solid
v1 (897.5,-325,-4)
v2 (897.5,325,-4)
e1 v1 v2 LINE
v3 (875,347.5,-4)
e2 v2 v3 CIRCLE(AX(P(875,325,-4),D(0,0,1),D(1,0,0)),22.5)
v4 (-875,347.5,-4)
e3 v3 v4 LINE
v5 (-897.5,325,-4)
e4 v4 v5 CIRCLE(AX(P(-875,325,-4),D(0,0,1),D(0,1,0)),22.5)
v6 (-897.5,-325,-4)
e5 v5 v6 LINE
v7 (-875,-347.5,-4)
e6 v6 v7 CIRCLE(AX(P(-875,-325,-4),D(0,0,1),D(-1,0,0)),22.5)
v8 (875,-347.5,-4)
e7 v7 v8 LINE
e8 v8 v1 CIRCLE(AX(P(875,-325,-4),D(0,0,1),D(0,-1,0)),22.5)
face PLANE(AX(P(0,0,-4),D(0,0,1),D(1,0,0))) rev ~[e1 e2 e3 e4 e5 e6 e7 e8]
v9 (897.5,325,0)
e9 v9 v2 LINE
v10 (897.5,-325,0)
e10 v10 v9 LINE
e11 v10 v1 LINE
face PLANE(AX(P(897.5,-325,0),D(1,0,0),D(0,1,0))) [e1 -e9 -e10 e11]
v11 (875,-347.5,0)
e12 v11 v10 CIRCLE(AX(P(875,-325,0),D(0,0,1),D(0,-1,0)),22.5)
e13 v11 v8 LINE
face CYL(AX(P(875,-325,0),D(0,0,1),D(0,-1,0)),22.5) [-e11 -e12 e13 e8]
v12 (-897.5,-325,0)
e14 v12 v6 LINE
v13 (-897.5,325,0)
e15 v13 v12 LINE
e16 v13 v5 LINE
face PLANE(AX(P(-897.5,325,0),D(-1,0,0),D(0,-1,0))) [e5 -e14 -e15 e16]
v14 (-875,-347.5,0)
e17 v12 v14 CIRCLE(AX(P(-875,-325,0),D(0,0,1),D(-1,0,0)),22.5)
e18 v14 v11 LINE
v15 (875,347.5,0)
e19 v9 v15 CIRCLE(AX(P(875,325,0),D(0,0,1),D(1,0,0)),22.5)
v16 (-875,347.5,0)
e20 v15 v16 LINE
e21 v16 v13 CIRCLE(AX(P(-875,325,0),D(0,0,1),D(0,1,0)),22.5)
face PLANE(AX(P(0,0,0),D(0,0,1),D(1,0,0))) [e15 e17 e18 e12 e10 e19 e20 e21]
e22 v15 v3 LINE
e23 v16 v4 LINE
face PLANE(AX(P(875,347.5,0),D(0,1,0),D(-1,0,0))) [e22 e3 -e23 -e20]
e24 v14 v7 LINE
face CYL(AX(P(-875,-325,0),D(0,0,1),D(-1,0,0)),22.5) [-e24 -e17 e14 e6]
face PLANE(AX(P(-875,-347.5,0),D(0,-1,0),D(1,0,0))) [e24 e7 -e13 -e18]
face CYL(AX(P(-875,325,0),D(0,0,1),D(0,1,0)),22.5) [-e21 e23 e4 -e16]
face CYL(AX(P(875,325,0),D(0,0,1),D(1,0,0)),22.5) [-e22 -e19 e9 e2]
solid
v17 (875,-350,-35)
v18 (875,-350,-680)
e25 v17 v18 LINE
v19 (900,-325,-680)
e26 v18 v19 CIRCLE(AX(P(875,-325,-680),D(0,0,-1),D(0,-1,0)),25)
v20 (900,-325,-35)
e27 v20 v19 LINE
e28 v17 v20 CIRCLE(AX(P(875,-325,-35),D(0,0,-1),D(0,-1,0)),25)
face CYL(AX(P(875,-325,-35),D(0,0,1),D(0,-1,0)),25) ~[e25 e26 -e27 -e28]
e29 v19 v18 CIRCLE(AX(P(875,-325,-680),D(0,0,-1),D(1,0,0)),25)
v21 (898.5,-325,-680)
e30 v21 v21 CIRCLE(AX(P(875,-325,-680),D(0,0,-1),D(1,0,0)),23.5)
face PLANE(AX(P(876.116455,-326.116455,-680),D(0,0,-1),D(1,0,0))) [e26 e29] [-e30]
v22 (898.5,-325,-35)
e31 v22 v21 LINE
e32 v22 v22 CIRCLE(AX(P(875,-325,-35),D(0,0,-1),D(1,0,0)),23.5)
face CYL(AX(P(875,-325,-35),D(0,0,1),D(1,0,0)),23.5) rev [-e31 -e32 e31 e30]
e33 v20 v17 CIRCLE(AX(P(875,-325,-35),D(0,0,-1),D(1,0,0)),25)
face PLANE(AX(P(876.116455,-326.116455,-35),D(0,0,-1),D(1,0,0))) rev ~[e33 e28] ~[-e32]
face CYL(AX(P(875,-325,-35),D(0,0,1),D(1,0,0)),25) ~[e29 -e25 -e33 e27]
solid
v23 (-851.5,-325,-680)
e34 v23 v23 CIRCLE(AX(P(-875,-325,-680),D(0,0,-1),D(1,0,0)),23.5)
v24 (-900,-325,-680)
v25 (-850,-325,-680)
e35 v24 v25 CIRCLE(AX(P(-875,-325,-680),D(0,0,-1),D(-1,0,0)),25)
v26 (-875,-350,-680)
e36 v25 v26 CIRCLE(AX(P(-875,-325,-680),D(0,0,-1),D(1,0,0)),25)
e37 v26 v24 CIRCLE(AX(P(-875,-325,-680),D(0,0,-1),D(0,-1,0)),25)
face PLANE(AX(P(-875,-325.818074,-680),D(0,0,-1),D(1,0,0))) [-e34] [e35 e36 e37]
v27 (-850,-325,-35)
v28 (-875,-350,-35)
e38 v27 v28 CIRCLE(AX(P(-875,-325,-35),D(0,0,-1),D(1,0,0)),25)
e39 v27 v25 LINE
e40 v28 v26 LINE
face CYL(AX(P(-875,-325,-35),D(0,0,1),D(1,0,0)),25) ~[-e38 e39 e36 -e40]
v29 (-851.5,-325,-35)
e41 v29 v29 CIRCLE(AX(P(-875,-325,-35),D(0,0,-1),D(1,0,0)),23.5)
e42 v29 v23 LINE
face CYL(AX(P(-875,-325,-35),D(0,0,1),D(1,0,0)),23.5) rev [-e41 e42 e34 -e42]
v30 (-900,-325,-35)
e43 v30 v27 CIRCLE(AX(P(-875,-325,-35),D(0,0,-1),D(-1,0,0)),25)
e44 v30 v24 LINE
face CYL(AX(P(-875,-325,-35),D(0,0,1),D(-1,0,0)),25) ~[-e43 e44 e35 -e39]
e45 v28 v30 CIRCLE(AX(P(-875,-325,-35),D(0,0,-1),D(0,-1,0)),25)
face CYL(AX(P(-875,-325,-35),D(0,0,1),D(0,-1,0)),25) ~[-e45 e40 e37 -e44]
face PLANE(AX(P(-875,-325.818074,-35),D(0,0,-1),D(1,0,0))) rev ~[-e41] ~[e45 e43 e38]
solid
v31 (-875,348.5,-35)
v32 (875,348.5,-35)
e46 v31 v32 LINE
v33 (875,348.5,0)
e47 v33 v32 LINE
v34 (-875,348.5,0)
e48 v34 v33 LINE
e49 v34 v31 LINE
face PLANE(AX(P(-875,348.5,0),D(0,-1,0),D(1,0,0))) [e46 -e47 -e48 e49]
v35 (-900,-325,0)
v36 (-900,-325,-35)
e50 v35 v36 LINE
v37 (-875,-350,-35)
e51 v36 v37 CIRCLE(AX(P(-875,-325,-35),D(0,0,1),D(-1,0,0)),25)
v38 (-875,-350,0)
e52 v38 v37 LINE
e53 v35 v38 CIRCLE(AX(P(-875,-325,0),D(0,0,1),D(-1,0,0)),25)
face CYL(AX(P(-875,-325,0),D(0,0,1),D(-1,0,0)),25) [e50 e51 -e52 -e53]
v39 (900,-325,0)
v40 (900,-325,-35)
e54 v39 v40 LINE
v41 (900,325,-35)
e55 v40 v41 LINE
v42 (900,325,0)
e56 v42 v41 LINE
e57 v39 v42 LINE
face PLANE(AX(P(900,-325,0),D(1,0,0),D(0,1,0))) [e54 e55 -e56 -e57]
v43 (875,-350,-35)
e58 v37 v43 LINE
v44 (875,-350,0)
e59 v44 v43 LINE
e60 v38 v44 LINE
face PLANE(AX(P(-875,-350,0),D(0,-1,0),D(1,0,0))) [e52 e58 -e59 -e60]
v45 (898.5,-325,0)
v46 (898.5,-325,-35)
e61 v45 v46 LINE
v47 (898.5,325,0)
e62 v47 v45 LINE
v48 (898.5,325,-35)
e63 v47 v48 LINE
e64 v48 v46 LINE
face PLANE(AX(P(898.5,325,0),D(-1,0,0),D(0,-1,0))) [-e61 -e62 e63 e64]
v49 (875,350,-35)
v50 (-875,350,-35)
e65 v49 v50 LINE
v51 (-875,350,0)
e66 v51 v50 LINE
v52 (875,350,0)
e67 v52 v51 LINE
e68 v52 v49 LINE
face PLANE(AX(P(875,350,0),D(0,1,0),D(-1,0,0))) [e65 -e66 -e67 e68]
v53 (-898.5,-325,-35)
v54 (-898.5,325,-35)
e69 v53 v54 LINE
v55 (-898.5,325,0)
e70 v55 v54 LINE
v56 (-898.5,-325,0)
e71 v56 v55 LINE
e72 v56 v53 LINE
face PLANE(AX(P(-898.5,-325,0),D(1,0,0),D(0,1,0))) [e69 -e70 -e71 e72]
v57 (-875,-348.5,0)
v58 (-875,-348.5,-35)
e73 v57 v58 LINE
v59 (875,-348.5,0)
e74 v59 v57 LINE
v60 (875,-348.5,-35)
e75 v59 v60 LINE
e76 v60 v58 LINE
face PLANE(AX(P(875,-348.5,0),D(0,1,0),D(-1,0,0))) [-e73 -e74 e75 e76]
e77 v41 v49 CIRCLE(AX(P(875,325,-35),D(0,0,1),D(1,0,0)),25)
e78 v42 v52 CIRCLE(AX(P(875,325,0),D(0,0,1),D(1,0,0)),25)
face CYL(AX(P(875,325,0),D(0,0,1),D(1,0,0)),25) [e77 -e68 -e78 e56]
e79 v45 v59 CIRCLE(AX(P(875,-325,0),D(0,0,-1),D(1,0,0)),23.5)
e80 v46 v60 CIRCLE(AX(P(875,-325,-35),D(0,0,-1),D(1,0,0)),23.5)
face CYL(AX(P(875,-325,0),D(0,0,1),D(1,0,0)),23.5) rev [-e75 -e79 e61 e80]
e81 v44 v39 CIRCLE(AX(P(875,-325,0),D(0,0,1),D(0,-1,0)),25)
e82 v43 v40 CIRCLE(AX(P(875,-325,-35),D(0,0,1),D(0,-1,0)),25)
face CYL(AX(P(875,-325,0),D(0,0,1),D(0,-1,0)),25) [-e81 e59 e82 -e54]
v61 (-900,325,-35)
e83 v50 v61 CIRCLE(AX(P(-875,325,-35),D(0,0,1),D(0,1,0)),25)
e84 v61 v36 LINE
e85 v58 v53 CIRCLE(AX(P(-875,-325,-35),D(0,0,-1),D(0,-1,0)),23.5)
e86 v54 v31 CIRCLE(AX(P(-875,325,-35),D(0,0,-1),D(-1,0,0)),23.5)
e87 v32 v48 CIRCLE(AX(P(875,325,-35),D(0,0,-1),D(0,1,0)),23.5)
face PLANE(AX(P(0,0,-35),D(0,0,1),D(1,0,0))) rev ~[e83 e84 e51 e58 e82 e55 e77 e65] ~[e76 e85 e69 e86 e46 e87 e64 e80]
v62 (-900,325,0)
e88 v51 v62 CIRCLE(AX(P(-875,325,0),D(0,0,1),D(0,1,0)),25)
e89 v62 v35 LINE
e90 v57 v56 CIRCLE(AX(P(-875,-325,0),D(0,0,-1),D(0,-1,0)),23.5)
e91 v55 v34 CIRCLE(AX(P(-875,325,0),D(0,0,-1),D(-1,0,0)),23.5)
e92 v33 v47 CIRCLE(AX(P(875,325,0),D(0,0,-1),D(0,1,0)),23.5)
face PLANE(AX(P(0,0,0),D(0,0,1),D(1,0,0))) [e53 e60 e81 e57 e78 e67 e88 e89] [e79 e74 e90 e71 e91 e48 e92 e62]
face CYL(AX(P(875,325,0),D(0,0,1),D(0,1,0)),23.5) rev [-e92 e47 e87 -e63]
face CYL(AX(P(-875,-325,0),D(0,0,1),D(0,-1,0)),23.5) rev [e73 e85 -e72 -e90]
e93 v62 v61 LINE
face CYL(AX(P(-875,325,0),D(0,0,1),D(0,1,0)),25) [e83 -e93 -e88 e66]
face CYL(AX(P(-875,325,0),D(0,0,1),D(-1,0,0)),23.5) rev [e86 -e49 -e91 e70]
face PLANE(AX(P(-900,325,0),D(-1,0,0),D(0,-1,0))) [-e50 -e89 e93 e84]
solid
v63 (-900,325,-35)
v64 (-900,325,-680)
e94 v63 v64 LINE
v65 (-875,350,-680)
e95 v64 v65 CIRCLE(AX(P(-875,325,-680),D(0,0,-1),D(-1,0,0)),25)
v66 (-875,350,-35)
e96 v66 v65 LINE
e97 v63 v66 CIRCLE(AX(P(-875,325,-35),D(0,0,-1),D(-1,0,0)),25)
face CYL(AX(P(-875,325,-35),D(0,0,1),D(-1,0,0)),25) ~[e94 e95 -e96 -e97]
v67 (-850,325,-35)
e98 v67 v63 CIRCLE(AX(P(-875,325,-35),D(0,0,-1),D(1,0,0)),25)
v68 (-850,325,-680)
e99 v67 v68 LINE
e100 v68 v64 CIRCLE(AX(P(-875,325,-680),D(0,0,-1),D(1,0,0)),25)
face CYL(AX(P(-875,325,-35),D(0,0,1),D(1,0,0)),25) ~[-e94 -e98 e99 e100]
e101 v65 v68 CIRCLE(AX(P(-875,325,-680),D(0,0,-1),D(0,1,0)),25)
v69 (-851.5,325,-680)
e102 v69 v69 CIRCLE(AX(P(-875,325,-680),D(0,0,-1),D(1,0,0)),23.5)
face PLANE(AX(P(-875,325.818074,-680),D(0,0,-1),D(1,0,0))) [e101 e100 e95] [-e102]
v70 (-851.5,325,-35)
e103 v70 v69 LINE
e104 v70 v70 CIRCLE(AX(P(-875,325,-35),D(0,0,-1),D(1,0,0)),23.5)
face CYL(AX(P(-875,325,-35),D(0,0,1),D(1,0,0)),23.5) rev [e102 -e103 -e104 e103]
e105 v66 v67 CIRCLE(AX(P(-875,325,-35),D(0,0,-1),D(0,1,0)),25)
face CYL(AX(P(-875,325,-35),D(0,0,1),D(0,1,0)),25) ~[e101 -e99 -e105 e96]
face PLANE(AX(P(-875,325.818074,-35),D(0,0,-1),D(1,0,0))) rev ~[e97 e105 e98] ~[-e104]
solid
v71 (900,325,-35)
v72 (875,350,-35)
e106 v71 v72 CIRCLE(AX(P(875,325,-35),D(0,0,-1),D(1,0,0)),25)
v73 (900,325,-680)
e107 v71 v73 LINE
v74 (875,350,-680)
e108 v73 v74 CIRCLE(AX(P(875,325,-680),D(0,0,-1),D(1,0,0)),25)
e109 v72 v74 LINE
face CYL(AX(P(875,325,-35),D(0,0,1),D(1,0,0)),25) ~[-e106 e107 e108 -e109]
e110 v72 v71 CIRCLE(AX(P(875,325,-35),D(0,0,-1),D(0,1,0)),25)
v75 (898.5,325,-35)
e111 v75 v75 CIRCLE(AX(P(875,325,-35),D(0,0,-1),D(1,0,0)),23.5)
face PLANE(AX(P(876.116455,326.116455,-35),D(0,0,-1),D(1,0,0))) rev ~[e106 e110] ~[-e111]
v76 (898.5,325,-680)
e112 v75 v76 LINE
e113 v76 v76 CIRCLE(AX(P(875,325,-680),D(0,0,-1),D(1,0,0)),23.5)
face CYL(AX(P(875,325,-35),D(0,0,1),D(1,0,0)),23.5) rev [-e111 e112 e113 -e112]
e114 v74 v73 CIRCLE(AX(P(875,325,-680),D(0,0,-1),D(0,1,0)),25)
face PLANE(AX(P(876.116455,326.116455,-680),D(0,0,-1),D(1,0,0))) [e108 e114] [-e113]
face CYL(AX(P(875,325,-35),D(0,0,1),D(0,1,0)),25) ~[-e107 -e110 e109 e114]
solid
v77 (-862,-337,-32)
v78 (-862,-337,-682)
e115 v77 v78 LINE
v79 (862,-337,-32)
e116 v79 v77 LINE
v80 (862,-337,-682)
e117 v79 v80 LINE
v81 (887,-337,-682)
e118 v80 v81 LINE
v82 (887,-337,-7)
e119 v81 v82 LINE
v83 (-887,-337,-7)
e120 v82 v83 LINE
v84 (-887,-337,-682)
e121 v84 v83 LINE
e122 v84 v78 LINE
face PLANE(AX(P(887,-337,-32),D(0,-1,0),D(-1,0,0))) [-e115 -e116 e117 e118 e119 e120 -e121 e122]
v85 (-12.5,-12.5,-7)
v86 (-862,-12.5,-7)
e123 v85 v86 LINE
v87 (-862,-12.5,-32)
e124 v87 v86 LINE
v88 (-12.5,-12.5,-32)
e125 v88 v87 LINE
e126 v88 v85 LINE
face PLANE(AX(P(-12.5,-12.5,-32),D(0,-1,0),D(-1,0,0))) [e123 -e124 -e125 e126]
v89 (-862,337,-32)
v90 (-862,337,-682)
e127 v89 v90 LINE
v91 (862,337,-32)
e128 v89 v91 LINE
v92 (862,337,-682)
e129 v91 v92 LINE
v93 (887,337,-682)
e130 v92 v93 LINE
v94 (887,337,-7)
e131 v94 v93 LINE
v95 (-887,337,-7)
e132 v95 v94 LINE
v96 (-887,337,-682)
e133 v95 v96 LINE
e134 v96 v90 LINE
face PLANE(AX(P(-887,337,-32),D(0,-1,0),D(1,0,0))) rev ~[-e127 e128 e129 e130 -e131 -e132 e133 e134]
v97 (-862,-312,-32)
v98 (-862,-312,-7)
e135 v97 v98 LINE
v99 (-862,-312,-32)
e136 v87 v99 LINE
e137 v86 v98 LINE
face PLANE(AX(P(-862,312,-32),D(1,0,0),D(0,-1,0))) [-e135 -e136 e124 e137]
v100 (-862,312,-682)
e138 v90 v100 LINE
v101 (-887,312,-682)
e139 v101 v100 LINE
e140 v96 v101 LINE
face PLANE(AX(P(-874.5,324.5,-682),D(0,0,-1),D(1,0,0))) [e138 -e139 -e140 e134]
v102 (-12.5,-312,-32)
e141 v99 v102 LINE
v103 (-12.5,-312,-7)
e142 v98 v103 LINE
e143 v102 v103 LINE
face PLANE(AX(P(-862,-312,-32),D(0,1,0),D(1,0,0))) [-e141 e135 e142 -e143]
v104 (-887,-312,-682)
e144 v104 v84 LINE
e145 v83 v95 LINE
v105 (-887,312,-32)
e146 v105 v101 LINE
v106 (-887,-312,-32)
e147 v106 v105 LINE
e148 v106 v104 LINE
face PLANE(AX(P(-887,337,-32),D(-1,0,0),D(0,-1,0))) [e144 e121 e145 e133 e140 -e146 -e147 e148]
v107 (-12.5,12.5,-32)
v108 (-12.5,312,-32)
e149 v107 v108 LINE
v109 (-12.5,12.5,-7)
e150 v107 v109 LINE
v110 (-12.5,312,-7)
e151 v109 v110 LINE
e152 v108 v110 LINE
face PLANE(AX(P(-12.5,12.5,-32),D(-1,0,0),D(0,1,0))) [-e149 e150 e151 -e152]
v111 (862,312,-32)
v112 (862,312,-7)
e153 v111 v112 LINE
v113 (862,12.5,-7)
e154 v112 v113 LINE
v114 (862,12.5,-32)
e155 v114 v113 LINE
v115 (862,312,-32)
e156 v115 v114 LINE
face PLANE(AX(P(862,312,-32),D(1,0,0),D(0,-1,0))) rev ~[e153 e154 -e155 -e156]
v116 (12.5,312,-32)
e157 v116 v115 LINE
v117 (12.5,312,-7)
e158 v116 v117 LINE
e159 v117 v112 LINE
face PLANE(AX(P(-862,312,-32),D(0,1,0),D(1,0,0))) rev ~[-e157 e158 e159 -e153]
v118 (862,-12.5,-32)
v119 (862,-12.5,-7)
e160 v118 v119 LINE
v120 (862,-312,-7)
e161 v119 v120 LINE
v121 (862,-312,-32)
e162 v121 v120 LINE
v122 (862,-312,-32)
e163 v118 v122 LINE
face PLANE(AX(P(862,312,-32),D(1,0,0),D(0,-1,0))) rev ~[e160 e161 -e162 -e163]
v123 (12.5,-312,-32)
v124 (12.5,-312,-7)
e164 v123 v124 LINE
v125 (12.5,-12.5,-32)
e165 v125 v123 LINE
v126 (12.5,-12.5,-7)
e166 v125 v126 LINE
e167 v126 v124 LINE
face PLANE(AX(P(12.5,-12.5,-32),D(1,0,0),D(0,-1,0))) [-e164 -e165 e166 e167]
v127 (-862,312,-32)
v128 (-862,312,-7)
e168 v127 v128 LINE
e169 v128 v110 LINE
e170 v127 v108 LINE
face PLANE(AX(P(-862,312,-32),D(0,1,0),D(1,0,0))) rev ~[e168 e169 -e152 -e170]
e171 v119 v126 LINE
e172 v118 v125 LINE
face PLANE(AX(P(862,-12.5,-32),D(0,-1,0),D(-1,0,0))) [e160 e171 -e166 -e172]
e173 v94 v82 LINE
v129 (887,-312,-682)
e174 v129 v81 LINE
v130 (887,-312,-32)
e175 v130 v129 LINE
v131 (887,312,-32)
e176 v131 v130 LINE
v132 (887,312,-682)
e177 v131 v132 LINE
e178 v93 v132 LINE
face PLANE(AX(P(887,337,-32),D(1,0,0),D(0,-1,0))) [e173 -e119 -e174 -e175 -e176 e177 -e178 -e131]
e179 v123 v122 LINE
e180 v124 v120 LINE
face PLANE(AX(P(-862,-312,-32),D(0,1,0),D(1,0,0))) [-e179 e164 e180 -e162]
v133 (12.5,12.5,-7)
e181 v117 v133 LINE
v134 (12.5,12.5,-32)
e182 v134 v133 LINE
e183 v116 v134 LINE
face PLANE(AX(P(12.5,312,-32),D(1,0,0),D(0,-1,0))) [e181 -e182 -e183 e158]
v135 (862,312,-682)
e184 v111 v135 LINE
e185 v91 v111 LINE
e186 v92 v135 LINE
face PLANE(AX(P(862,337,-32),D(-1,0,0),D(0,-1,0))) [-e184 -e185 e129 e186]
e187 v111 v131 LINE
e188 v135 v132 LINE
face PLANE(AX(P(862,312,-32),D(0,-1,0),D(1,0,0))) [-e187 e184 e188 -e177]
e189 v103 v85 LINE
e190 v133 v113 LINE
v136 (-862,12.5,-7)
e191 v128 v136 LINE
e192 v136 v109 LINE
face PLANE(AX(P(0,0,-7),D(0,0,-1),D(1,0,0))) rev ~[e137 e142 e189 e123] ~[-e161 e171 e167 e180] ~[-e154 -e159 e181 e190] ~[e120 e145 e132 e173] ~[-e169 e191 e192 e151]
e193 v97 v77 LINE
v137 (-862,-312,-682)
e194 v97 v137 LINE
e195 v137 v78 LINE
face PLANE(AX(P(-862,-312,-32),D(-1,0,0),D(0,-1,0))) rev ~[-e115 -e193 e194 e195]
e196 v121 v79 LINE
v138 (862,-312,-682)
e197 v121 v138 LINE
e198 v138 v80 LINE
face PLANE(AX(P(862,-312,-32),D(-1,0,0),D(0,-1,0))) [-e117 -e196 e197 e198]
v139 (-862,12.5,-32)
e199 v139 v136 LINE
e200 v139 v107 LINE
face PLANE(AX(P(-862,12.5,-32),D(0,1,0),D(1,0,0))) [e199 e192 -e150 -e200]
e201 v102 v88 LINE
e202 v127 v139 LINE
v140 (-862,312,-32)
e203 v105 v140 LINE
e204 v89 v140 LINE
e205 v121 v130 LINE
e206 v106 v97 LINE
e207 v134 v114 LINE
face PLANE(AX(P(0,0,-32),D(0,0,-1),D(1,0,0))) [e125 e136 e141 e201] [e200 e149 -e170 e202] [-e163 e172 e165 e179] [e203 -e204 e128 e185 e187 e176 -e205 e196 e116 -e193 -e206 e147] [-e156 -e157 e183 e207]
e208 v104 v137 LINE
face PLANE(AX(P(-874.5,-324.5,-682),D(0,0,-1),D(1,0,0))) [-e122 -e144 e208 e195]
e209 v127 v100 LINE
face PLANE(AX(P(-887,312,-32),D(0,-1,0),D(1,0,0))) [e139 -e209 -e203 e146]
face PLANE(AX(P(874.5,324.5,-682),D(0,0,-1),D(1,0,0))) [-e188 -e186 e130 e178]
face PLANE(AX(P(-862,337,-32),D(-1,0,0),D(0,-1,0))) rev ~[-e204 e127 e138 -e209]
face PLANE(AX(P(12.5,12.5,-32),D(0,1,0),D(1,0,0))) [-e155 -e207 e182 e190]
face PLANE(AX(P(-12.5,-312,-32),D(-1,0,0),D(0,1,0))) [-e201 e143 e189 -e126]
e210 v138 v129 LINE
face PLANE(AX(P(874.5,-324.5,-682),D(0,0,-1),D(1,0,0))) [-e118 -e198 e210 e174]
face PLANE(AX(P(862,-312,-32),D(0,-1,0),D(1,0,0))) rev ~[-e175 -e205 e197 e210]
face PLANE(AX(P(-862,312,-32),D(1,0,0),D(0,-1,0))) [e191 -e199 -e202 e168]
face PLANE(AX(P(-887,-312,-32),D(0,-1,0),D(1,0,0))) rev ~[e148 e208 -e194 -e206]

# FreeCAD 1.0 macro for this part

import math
import FreeCAD as App
import Part
import Sketcher

V = App.Vector
Q = App.Units.Quantity

doc = App.newDocument("Part")
body = doc.addObject("PartDesign::Body", "Body")

# Sketch on XY plane
sketch1 = doc.addObject("Sketcher::SketchObject", "Sketch")
body.addObject(sketch1)
sketch1.AttachmentSupport = (doc.XY_Plane, [""])
sketch1.MapMode = "FlatFace"
sketch1.addGeometry(Part.ArcOfCircle(Part.Circle(V(875, 325, 0), V(0, 0, 1), 25), math.radians(0), math.radians(90)), False)
sketch1.addGeometry(Part.LineSegment(V(875, 350, 0), V(-875, 350, 0)), False)
sketch1.addGeometry(Part.ArcOfCircle(Part.Circle(V(-875, 325, 0), V(0, 0, 1), 25), math.radians(90), math.radians(180)), False)
sketch1.addGeometry(Part.LineSegment(V(-900, 325, 0), V(-900, -325, 0)), False)
sketch1.addGeometry(Part.ArcOfCircle(Part.Circle(V(-875, -325, 0), V(0, 0, 1), 25), math.radians(180), math.radians(270)), False)
sketch1.addGeometry(Part.LineSegment(V(-875, -350, 0), V(875, -350, 0)), False)
sketch1.addGeometry(Part.ArcOfCircle(Part.Circle(V(875, -325, 0), V(0, 0, 1), 25), math.radians(-90), math.radians(0)), False)
sketch1.addGeometry(Part.LineSegment(V(900, -325, 0), V(900, 325, 0)), False)
sketch1.addGeometry(Part.ArcOfCircle(Part.Circle(V(-875, -325, 0), V(0, 0, 1), 23.5), math.radians(180), math.radians(270)), False)
sketch1.addGeometry(Part.LineSegment(V(-898.5, -325, 0), V(-898.5, 325, 0)), False)
sketch1.addGeometry(Part.ArcOfCircle(Part.Circle(V(-875, 325, 0), V(0, 0, 1), 23.5), math.radians(90), math.radians(180)), False)
sketch1.addGeometry(Part.LineSegment(V(-875, 348.5, 0), V(875, 348.5, 0)), False)
sketch1.addGeometry(Part.ArcOfCircle(Part.Circle(V(875, 325, 0), V(0, 0, 1), 23.5), math.radians(0), math.radians(90)), False)
sketch1.addGeometry(Part.LineSegment(V(898.5, 325, 0), V(898.5, -325, 0)), False)
sketch1.addGeometry(Part.ArcOfCircle(Part.Circle(V(875, -325, 0), V(0, 0, 1), 23.5), math.radians(-90), math.radians(0)), False)
sketch1.addGeometry(Part.LineSegment(V(875, -348.5, 0), V(-875, -348.5, 0)), False)
sketch1.addConstraint(Sketcher.Constraint("Tangent", 0, 2, 1, 1))
sketch1.addConstraint(Sketcher.Constraint("Tangent", 1, 2, 2, 1))
sketch1.addConstraint(Sketcher.Constraint("Tangent", 2, 2, 3, 1))
sketch1.addConstraint(Sketcher.Constraint("Tangent", 3, 2, 4, 1))
sketch1.addConstraint(Sketcher.Constraint("Tangent", 4, 2, 5, 1))
sketch1.addConstraint(Sketcher.Constraint("Tangent", 5, 2, 6, 1))
sketch1.addConstraint(Sketcher.Constraint("Tangent", 6, 2, 7, 1))
sketch1.addConstraint(Sketcher.Constraint("Tangent", 7, 2, 0, 1))
sketch1.addConstraint(Sketcher.Constraint("Tangent", 8, 1, 9, 1))
sketch1.addConstraint(Sketcher.Constraint("Tangent", 9, 2, 10, 2))
sketch1.addConstraint(Sketcher.Constraint("Tangent", 10, 1, 11, 1))
sketch1.addConstraint(Sketcher.Constraint("Tangent", 11, 2, 12, 2))
sketch1.addConstraint(Sketcher.Constraint("Tangent", 12, 1, 13, 1))
sketch1.addConstraint(Sketcher.Constraint("Tangent", 13, 2, 14, 2))
sketch1.addConstraint(Sketcher.Constraint("Tangent", 14, 1, 15, 1))
sketch1.addConstraint(Sketcher.Constraint("Tangent", 15, 2, 8, 2))
sketch1.addConstraint(Sketcher.Constraint("Horizontal", 1))
sketch1.addConstraint(Sketcher.Constraint("Vertical", 3))
sketch1.addConstraint(Sketcher.Constraint("Horizontal", 5))
sketch1.addConstraint(Sketcher.Constraint("Vertical", 7))
sketch1.addConstraint(Sketcher.Constraint("Vertical", 9))
sketch1.addConstraint(Sketcher.Constraint("Horizontal", 11))
sketch1.addConstraint(Sketcher.Constraint("Vertical", 13))
sketch1.addConstraint(Sketcher.Constraint("Horizontal", 15))
sketch1.addConstraint(Sketcher.Constraint("Coincident", 8, 3, 4, 3))
sketch1.addConstraint(Sketcher.Constraint("Coincident", 10, 3, 2, 3))
sketch1.addConstraint(Sketcher.Constraint("Coincident", 12, 3, 0, 3))
sketch1.addConstraint(Sketcher.Constraint("Equal", 0, 2))
sketch1.addConstraint(Sketcher.Constraint("Equal", 2, 4))
sketch1.addConstraint(Sketcher.Constraint("Equal", 4, 6))
sketch1.addConstraint(Sketcher.Constraint("Equal", 12, 14))
sketch1.addConstraint(Sketcher.Constraint("Symmetric", 0, 3, 4, 3, -1, 1))
sketch1.addConstraint(Sketcher.Constraint("Radius", 0, Q("25 mm")))
sketch1.addConstraint(Sketcher.Constraint("Radius", 8, Q("23.5 mm")))
sketch1.addConstraint(Sketcher.Constraint("DistanceX", 1, 2, 1, 1, Q("1750 mm")))
sketch1.addConstraint(Sketcher.Constraint("DistanceY", 3, 2, 3, 1, Q("650 mm")))
pad1 = doc.addObject("PartDesign::Pad", "Pad")
body.addObject(pad1)
pad1.Profile = sketch1
pad1.Length = 35
pad1.Reversed = True
body2 = doc.addObject("PartDesign::Body", "Body001")

# Sketch on XY plane
sketch2 = doc.addObject("Sketcher::SketchObject", "Sketch001")
body2.addObject(sketch2)
sketch2.AttachmentSupport = (doc.getObject("XY_Plane001"), [""])
sketch2.MapMode = "FlatFace"
sketch2.addGeometry(Part.LineSegment(V(-875, -347.5, 0), V(875, -347.5, 0)), False)
sketch2.addGeometry(Part.ArcOfCircle(Part.Circle(V(875, -325, 0), V(0, 0, 1), 22.5), math.radians(-90), math.radians(0)), False)
sketch2.addGeometry(Part.LineSegment(V(897.5, -325, 0), V(897.5, 325, 0)), False)
sketch2.addGeometry(Part.ArcOfCircle(Part.Circle(V(875, 325, 0), V(0, 0, 1), 22.5), math.radians(0), math.radians(90)), False)
sketch2.addGeometry(Part.LineSegment(V(875, 347.5, 0), V(-875, 347.5, 0)), False)
sketch2.addGeometry(Part.ArcOfCircle(Part.Circle(V(-875, 325, 0), V(0, 0, 1), 22.5), math.radians(90), math.radians(180)), False)
sketch2.addGeometry(Part.LineSegment(V(-897.5, 325, 0), V(-897.5, -325, 0)), False)
sketch2.addGeometry(Part.ArcOfCircle(Part.Circle(V(-875, -325, 0), V(0, 0, 1), 22.5), math.radians(180), math.radians(270)), False)
sketch2.addConstraint(Sketcher.Constraint("Tangent", 0, 2, 1, 1))
sketch2.addConstraint(Sketcher.Constraint("Tangent", 1, 2, 2, 1))
sketch2.addConstraint(Sketcher.Constraint("Tangent", 2, 2, 3, 1))
sketch2.addConstraint(Sketcher.Constraint("Tangent", 3, 2, 4, 1))
sketch2.addConstraint(Sketcher.Constraint("Tangent", 4, 2, 5, 1))
sketch2.addConstraint(Sketcher.Constraint("Tangent", 5, 2, 6, 1))
sketch2.addConstraint(Sketcher.Constraint("Tangent", 6, 2, 7, 1))
sketch2.addConstraint(Sketcher.Constraint("Tangent", 7, 2, 0, 1))
sketch2.addConstraint(Sketcher.Constraint("Horizontal", 0))
sketch2.addConstraint(Sketcher.Constraint("Vertical", 2))
sketch2.addConstraint(Sketcher.Constraint("Horizontal", 4))
sketch2.addConstraint(Sketcher.Constraint("Vertical", 6))
sketch2.addConstraint(Sketcher.Constraint("Equal", 1, 3))
sketch2.addConstraint(Sketcher.Constraint("Equal", 3, 5))
sketch2.addConstraint(Sketcher.Constraint("Equal", 5, 7))
sketch2.addConstraint(Sketcher.Constraint("Symmetric", 1, 3, 5, 3, -1, 1))
sketch2.addConstraint(Sketcher.Constraint("Radius", 1, Q("22.5 mm")))
sketch2.addConstraint(Sketcher.Constraint("DistanceX", 0, 1, 0, 2, Q("1750 mm")))
sketch2.addConstraint(Sketcher.Constraint("DistanceY", 2, 1, 2, 2, Q("650 mm")))
pad2 = doc.addObject("PartDesign::Pad", "Pad001")
body2.addObject(pad2)
pad2.Profile = sketch2
pad2.Length = 4
pad2.Reversed = True
body3 = doc.addObject("PartDesign::Body", "Body002")

# Sketch on XY plane
sketch3 = doc.addObject("Sketcher::SketchObject", "Sketch002")
body3.addObject(sketch3)
sketch3.AttachmentSupport = (doc.getObject("XY_Plane002"), [""])
sketch3.MapMode = "FlatFace"
sketch3.AttachmentOffset = App.Placement(V(0, 0, -32), App.Rotation())
sketch3.addGeometry(Part.LineSegment(V(-887, 337, 0), V(887, 337, 0)), False)
sketch3.addGeometry(Part.LineSegment(V(887, 337, 0), V(887, -337, 0)), False)
sketch3.addGeometry(Part.LineSegment(V(887, -337, 0), V(-887, -337, 0)), False)
sketch3.addGeometry(Part.LineSegment(V(-887, -337, 0), V(-887, 337, 0)), False)
sketch3.addGeometry(Part.LineSegment(V(862, 312, 0), V(-862, 312, 0)), False)
sketch3.addGeometry(Part.LineSegment(V(-862, 312, 0), V(-862, -312, 0)), False)
sketch3.addGeometry(Part.LineSegment(V(-862, -312, 0), V(862, -312, 0)), False)
sketch3.addGeometry(Part.LineSegment(V(862, -312, 0), V(862, 312, 0)), False)
sketch3.addConstraint(Sketcher.Constraint("Coincident", 0, 2, 1, 1))
sketch3.addConstraint(Sketcher.Constraint("Coincident", 1, 2, 2, 1))
sketch3.addConstraint(Sketcher.Constraint("Coincident", 2, 2, 3, 1))
sketch3.addConstraint(Sketcher.Constraint("Coincident", 3, 2, 0, 1))
sketch3.addConstraint(Sketcher.Constraint("Coincident", 4, 2, 5, 1))
sketch3.addConstraint(Sketcher.Constraint("Coincident", 5, 2, 6, 1))
sketch3.addConstraint(Sketcher.Constraint("Coincident", 6, 2, 7, 1))
sketch3.addConstraint(Sketcher.Constraint("Coincident", 7, 2, 4, 1))
sketch3.addConstraint(Sketcher.Constraint("Horizontal", 0))
sketch3.addConstraint(Sketcher.Constraint("Vertical", 1))
sketch3.addConstraint(Sketcher.Constraint("Horizontal", 2))
sketch3.addConstraint(Sketcher.Constraint("Vertical", 3))
sketch3.addConstraint(Sketcher.Constraint("Horizontal", 4))
sketch3.addConstraint(Sketcher.Constraint("Vertical", 5))
sketch3.addConstraint(Sketcher.Constraint("Horizontal", 6))
sketch3.addConstraint(Sketcher.Constraint("Vertical", 7))
sketch3.addConstraint(Sketcher.Constraint("Symmetric", 0, 2, 2, 2, -1, 1))
sketch3.addConstraint(Sketcher.Constraint("Symmetric", 4, 2, 6, 2, -1, 1))
sketch3.addConstraint(Sketcher.Constraint("DistanceX", 0, 1, 0, 2, Q("1774 mm")))
sketch3.addConstraint(Sketcher.Constraint("DistanceX", 4, 2, 4, 1, Q("1724 mm")))
sketch3.addConstraint(Sketcher.Constraint("DistanceY", 1, 2, 1, 1, Q("674 mm")))
sketch3.addConstraint(Sketcher.Constraint("DistanceY", 5, 2, 5, 1, Q("624 mm")))
pad3 = doc.addObject("PartDesign::Pad", "Pad002")
body3.addObject(pad3)
pad3.Profile = sketch3
pad3.Length = 25

# Sketch on XY plane
sketch4 = doc.addObject("Sketcher::SketchObject", "Sketch003")
body3.addObject(sketch4)
sketch4.AttachmentSupport = (doc.getObject("XY_Plane002"), [""])
sketch4.MapMode = "FlatFace"
sketch4.AttachmentOffset = App.Placement(V(0, 0, -32), App.Rotation())
sketch4.addGeometry(Part.LineSegment(V(-887, 312, 0), V(-887, 337, 0)), False)
sketch4.addGeometry(Part.LineSegment(V(-887, 337, 0), V(-862, 337, 0)), False)
sketch4.addGeometry(Part.LineSegment(V(-862, 337, 0), V(-862, 312, 0)), False)
sketch4.addGeometry(Part.LineSegment(V(-862, 312, 0), V(-887, 312, 0)), False)
sketch4.addGeometry(Part.LineSegment(V(-887, -337, 0), V(-887, -312, 0)), False)
sketch4.addGeometry(Part.LineSegment(V(-887, -312, 0), V(-862, -312, 0)), False)
sketch4.addGeometry(Part.LineSegment(V(-862, -312, 0), V(-862, -337, 0)), False)
sketch4.addGeometry(Part.LineSegment(V(-862, -337, 0), V(-887, -337, 0)), False)
sketch4.addGeometry(Part.LineSegment(V(862, -337, 0), V(862, -312, 0)), False)
sketch4.addGeometry(Part.LineSegment(V(862, -312, 0), V(887, -312, 0)), False)
sketch4.addGeometry(Part.LineSegment(V(887, -312, 0), V(887, -337, 0)), False)
sketch4.addGeometry(Part.LineSegment(V(887, -337, 0), V(862, -337, 0)), False)
sketch4.addGeometry(Part.LineSegment(V(862, 312, 0), V(862, 337, 0)), False)
sketch4.addGeometry(Part.LineSegment(V(862, 337, 0), V(887, 337, 0)), False)
sketch4.addGeometry(Part.LineSegment(V(887, 337, 0), V(887, 312, 0)), False)
sketch4.addGeometry(Part.LineSegment(V(887, 312, 0), V(862, 312, 0)), False)
sketch4.addConstraint(Sketcher.Constraint("Coincident", 0, 2, 1, 1))
sketch4.addConstraint(Sketcher.Constraint("Coincident", 1, 2, 2, 1))
sketch4.addConstraint(Sketcher.Constraint("Coincident", 2, 2, 3, 1))
sketch4.addConstraint(Sketcher.Constraint("Coincident", 3, 2, 0, 1))
sketch4.addConstraint(Sketcher.Constraint("Coincident", 4, 2, 5, 1))
sketch4.addConstraint(Sketcher.Constraint("Coincident", 5, 2, 6, 1))
sketch4.addConstraint(Sketcher.Constraint("Coincident", 6, 2, 7, 1))
sketch4.addConstraint(Sketcher.Constraint("Coincident", 7, 2, 4, 1))
sketch4.addConstraint(Sketcher.Constraint("Coincident", 8, 2, 9, 1))
sketch4.addConstraint(Sketcher.Constraint("Coincident", 9, 2, 10, 1))
sketch4.addConstraint(Sketcher.Constraint("Coincident", 10, 2, 11, 1))
sketch4.addConstraint(Sketcher.Constraint("Coincident", 11, 2, 8, 1))
sketch4.addConstraint(Sketcher.Constraint("Coincident", 12, 2, 13, 1))
sketch4.addConstraint(Sketcher.Constraint("Coincident", 13, 2, 14, 1))
sketch4.addConstraint(Sketcher.Constraint("Coincident", 14, 2, 15, 1))
sketch4.addConstraint(Sketcher.Constraint("Coincident", 15, 2, 12, 1))
sketch4.addConstraint(Sketcher.Constraint("Vertical", 0))
sketch4.addConstraint(Sketcher.Constraint("Horizontal", 1))
sketch4.addConstraint(Sketcher.Constraint("Vertical", 2))
sketch4.addConstraint(Sketcher.Constraint("Horizontal", 3))
sketch4.addConstraint(Sketcher.Constraint("Vertical", 4))
sketch4.addConstraint(Sketcher.Constraint("Horizontal", 5))
sketch4.addConstraint(Sketcher.Constraint("Vertical", 6))
sketch4.addConstraint(Sketcher.Constraint("Horizontal", 7))
sketch4.addConstraint(Sketcher.Constraint("Vertical", 8))
sketch4.addConstraint(Sketcher.Constraint("Horizontal", 9))
sketch4.addConstraint(Sketcher.Constraint("Vertical", 10))
sketch4.addConstraint(Sketcher.Constraint("Horizontal", 11))
sketch4.addConstraint(Sketcher.Constraint("Vertical", 12))
sketch4.addConstraint(Sketcher.Constraint("Horizontal", 13))
sketch4.addConstraint(Sketcher.Constraint("Vertical", 14))
sketch4.addConstraint(Sketcher.Constraint("Horizontal", 15))
sketch4.addConstraint(Sketcher.Constraint("Symmetric", 2, 2, 8, 2, -1, 1))
sketch4.addConstraint(Sketcher.Constraint("Symmetric", 0, 2, 10, 2, -1, 1))
sketch4.addConstraint(Sketcher.Constraint("Symmetric", 6, 2, 12, 2, -1, 1))
sketch4.addConstraint(Sketcher.Constraint("Symmetric", 4, 2, 14, 2, -1, 1))
sketch4.addConstraint(Sketcher.Constraint("Symmetric", 5, 2, 8, 2, -2))
sketch4.addConstraint(Sketcher.Constraint("Symmetric", 7, 2, 10, 2, -2))
sketch4.addConstraint(Sketcher.Constraint("Equal", 15, 0))
sketch4.addConstraint(Sketcher.Constraint("DistanceX", 1, 1, 1, 2, Q("25 mm")))
sketch4.addConstraint(Sketcher.Constraint("DistanceX", 0, 2, -1, 1, Q("887 mm")))
sketch4.addConstraint(Sketcher.Constraint("DistanceY", -1, 1, 0, 2, Q("337 mm")))
pad4 = doc.addObject("PartDesign::Pad", "Pad003")
body3.addObject(pad4)
pad4.Profile = sketch4
pad4.Length = 650
pad4.Reversed = True

# Sketch on XY plane
sketch5 = doc.addObject("Sketcher::SketchObject", "Sketch004")
body3.addObject(sketch5)
sketch5.AttachmentSupport = (doc.getObject("XY_Plane002"), [""])
sketch5.MapMode = "FlatFace"
sketch5.AttachmentOffset = App.Placement(V(0, 0, -32), App.Rotation())
sketch5.addGeometry(Part.LineSegment(V(-862, -12.5, 0), V(-862, 12.5, 0)), False)
sketch5.addGeometry(Part.LineSegment(V(-862, 12.5, 0), V(-12.5, 12.5, 0)), False)
sketch5.addGeometry(Part.LineSegment(V(-12.5, 12.5, 0), V(-12.5, 312, 0)), False)
sketch5.addGeometry(Part.LineSegment(V(-12.5, 312, 0), V(12.5, 312, 0)), False)
sketch5.addGeometry(Part.LineSegment(V(12.5, 312, 0), V(12.5, 12.5, 0)), False)
sketch5.addGeometry(Part.LineSegment(V(12.5, 12.5, 0), V(862, 12.5, 0)), False)
sketch5.addGeometry(Part.LineSegment(V(862, 12.5, 0), V(862, -12.5, 0)), False)
sketch5.addGeometry(Part.LineSegment(V(862, -12.5, 0), V(12.5, -12.5, 0)), False)
sketch5.addGeometry(Part.LineSegment(V(12.5, -12.5, 0), V(12.5, -312, 0)), False)
sketch5.addGeometry(Part.LineSegment(V(12.5, -312, 0), V(-12.5, -312, 0)), False)
sketch5.addGeometry(Part.LineSegment(V(-12.5, -312, 0), V(-12.5, -12.5, 0)), False)
sketch5.addGeometry(Part.LineSegment(V(-12.5, -12.5, 0), V(-862, -12.5, 0)), False)
sketch5.addConstraint(Sketcher.Constraint("Coincident", 0, 2, 1, 1))
sketch5.addConstraint(Sketcher.Constraint("Coincident", 1, 2, 2, 1))
sketch5.addConstraint(Sketcher.Constraint("Coincident", 2, 2, 3, 1))
sketch5.addConstraint(Sketcher.Constraint("Coincident", 3, 2, 4, 1))
sketch5.addConstraint(Sketcher.Constraint("Coincident", 4, 2, 5, 1))
sketch5.addConstraint(Sketcher.Constraint("Coincident", 5, 2, 6, 1))
sketch5.addConstraint(Sketcher.Constraint("Coincident", 6, 2, 7, 1))
sketch5.addConstraint(Sketcher.Constraint("Coincident", 7, 2, 8, 1))
sketch5.addConstraint(Sketcher.Constraint("Coincident", 8, 2, 9, 1))
sketch5.addConstraint(Sketcher.Constraint("Coincident", 9, 2, 10, 1))
sketch5.addConstraint(Sketcher.Constraint("Coincident", 10, 2, 11, 1))
sketch5.addConstraint(Sketcher.Constraint("Coincident", 11, 2, 0, 1))
sketch5.addConstraint(Sketcher.Constraint("Vertical", 0))
sketch5.addConstraint(Sketcher.Constraint("Horizontal", 1))
sketch5.addConstraint(Sketcher.Constraint("Vertical", 2))
sketch5.addConstraint(Sketcher.Constraint("Horizontal", 3))
sketch5.addConstraint(Sketcher.Constraint("Vertical", 4))
sketch5.addConstraint(Sketcher.Constraint("Horizontal", 5))
sketch5.addConstraint(Sketcher.Constraint("Vertical", 6))
sketch5.addConstraint(Sketcher.Constraint("Horizontal", 7))
sketch5.addConstraint(Sketcher.Constraint("Vertical", 8))
sketch5.addConstraint(Sketcher.Constraint("Horizontal", 9))
sketch5.addConstraint(Sketcher.Constraint("Vertical", 10))
sketch5.addConstraint(Sketcher.Constraint("Horizontal", 11))
sketch5.addConstraint(Sketcher.Constraint("Symmetric", 0, 2, 6, 2, -1, 1))
sketch5.addConstraint(Sketcher.Constraint("Symmetric", 2, 2, 8, 2, -1, 1))
sketch5.addConstraint(Sketcher.Constraint("Symmetric", 4, 2, 10, 2, -1, 1))
sketch5.addConstraint(Sketcher.Constraint("Symmetric", 1, 2, 4, 2, -2))
sketch5.addConstraint(Sketcher.Constraint("Equal", 9, 0))
sketch5.addConstraint(Sketcher.Constraint("DistanceX", 3, 1, 3, 2, Q("25 mm")))
sketch5.addConstraint(Sketcher.Constraint("DistanceX", 1, 1, 1, 2, Q("849.5 mm")))
sketch5.addConstraint(Sketcher.Constraint("DistanceY", 2, 1, 2, 2, Q("299.5 mm")))
pad5 = doc.addObject("PartDesign::Pad", "Pad004")
body3.addObject(pad5)
pad5.Profile = sketch5
pad5.Length = 25
body4 = doc.addObject("PartDesign::Body", "Body003")

# Sketch on XY plane
sketch6 = doc.addObject("Sketcher::SketchObject", "Sketch005")
body4.addObject(sketch6)
sketch6.AttachmentSupport = (doc.getObject("XY_Plane003"), [""])
sketch6.MapMode = "FlatFace"
sketch6.AttachmentOffset = App.Placement(V(0, 0, -35), App.Rotation())
sketch6.addGeometry(Part.ArcOfCircle(Part.Circle(V(-875, 325, 0), V(0, 0, 1), 25), math.radians(90), math.radians(180)), False)
sketch6.addGeometry(Part.ArcOfCircle(Part.Circle(V(-875, 325, 0), V(0, 0, 1), 25), math.radians(0), math.radians(90)), False)
sketch6.addGeometry(Part.ArcOfCircle(Part.Circle(V(-875, 325, 0), V(0, 0, 1), 25), math.radians(180), math.radians(360)), False)
sketch6.addGeometry(Part.Circle(V(-875, 325, 0), V(0, 0, 1), 23.5), False)
sketch6.addConstraint(Sketcher.Constraint("Tangent", 0, 1, 1, 2))
sketch6.addConstraint(Sketcher.Constraint("Tangent", 1, 1, 2, 2))
sketch6.addConstraint(Sketcher.Constraint("Tangent", 2, 1, 0, 2))
sketch6.addConstraint(Sketcher.Constraint("Coincident", 3, 3, 0, 3))
sketch6.addConstraint(Sketcher.Constraint("Horizontal", 3, 3, 1, 1))
sketch6.addConstraint(Sketcher.Constraint("Horizontal", 1, 1, 2, 1))
sketch6.addConstraint(Sketcher.Constraint("Vertical", 3, 3, 0, 1))
sketch6.addConstraint(Sketcher.Constraint("Diameter", 3, Q("47 mm")))
sketch6.addConstraint(Sketcher.Constraint("Radius", 0, Q("25 mm")))
sketch6.addConstraint(Sketcher.Constraint("DistanceX", 0, 3, -1, 1, Q("875 mm")))
sketch6.addConstraint(Sketcher.Constraint("DistanceY", -1, 1, 0, 3, Q("325 mm")))
pad6 = doc.addObject("PartDesign::Pad", "Pad005")
body4.addObject(pad6)
pad6.Profile = sketch6
pad6.Length = 645
pad6.Reversed = True
body5 = doc.addObject("PartDesign::Body", "Body004")

# Sketch on XY plane
sketch7 = doc.addObject("Sketcher::SketchObject", "Sketch006")
body5.addObject(sketch7)
sketch7.AttachmentSupport = (doc.getObject("XY_Plane004"), [""])
sketch7.MapMode = "FlatFace"
sketch7.AttachmentOffset = App.Placement(V(0, 0, -35), App.Rotation())
sketch7.addGeometry(Part.ArcOfCircle(Part.Circle(V(875, 325, 0), V(0, 0, 1), 25), math.radians(90), math.radians(360)), False)
sketch7.addGeometry(Part.ArcOfCircle(Part.Circle(V(875, 325, 0), V(0, 0, 1), 25), math.radians(0), math.radians(90)), False)
sketch7.addGeometry(Part.Circle(V(875, 325, 0), V(0, 0, 1), 23.5), False)
sketch7.addConstraint(Sketcher.Constraint("Tangent", 0, 1, 1, 2))
sketch7.addConstraint(Sketcher.Constraint("Coincident", 1, 1, 0, 2))
sketch7.addConstraint(Sketcher.Constraint("Coincident", 2, 3, 0, 3))
sketch7.addConstraint(Sketcher.Constraint("Horizontal", 2, 3, 1, 1))
sketch7.addConstraint(Sketcher.Constraint("Vertical", 2, 3, 0, 1))
sketch7.addConstraint(Sketcher.Constraint("Diameter", 2, Q("47 mm")))
sketch7.addConstraint(Sketcher.Constraint("Radius", 0, Q("25 mm")))
sketch7.addConstraint(Sketcher.Constraint("DistanceX", -1, 1, 0, 3, Q("875 mm")))
sketch7.addConstraint(Sketcher.Constraint("DistanceY", -1, 1, 0, 3, Q("325 mm")))
pad7 = doc.addObject("PartDesign::Pad", "Pad006")
body5.addObject(pad7)
pad7.Profile = sketch7
pad7.Length = 645
pad7.Reversed = True
body6 = doc.addObject("PartDesign::Body", "Body005")

# Sketch on XY plane
sketch8 = doc.addObject("Sketcher::SketchObject", "Sketch007")
body6.addObject(sketch8)
sketch8.AttachmentSupport = (doc.getObject("XY_Plane005"), [""])
sketch8.MapMode = "FlatFace"
sketch8.AttachmentOffset = App.Placement(V(0, 0, -35), App.Rotation())
sketch8.addGeometry(Part.ArcOfCircle(Part.Circle(V(-875, -325, 0), V(0, 0, 1), 25), math.radians(-90), math.radians(0)), False)
sketch8.addGeometry(Part.ArcOfCircle(Part.Circle(V(-875, -325, 0), V(0, 0, 1), 25), math.radians(180), math.radians(270)), False)
sketch8.addGeometry(Part.ArcOfCircle(Part.Circle(V(-875, -325, 0), V(0, 0, 1), 25), math.radians(0), math.radians(180)), False)
sketch8.addGeometry(Part.Circle(V(-875, -325, 0), V(0, 0, 1), 23.5), False)
sketch8.addConstraint(Sketcher.Constraint("Tangent", 0, 1, 1, 2))
sketch8.addConstraint(Sketcher.Constraint("Tangent", 1, 1, 2, 2))
sketch8.addConstraint(Sketcher.Constraint("Tangent", 2, 1, 0, 2))
sketch8.addConstraint(Sketcher.Constraint("Coincident", 3, 3, 0, 3))
sketch8.addConstraint(Sketcher.Constraint("Horizontal", 3, 3, 1, 1))
sketch8.addConstraint(Sketcher.Constraint("Horizontal", 1, 1, 2, 1))
sketch8.addConstraint(Sketcher.Constraint("Vertical", 3, 3, 0, 1))
sketch8.addConstraint(Sketcher.Constraint("Diameter", 3, Q("47 mm")))
sketch8.addConstraint(Sketcher.Constraint("Radius", 0, Q("25 mm")))
sketch8.addConstraint(Sketcher.Constraint("DistanceX", 0, 3, -1, 1, Q("875 mm")))
sketch8.addConstraint(Sketcher.Constraint("DistanceY", 0, 3, -1, 1, Q("325 mm")))
pad8 = doc.addObject("PartDesign::Pad", "Pad007")
body6.addObject(pad8)
pad8.Profile = sketch8
pad8.Length = 645
pad8.Reversed = True
body7 = doc.addObject("PartDesign::Body", "Body006")

# Sketch on XY plane
sketch9 = doc.addObject("Sketcher::SketchObject", "Sketch008")
body7.addObject(sketch9)
sketch9.AttachmentSupport = (doc.getObject("XY_Plane006"), [""])
sketch9.MapMode = "FlatFace"
sketch9.AttachmentOffset = App.Placement(V(0, 0, -35), App.Rotation())
sketch9.addGeometry(Part.ArcOfCircle(Part.Circle(V(875, -325, 0), V(0, 0, 1), 25), math.radians(-90), math.radians(0)), False)
sketch9.addGeometry(Part.ArcOfCircle(Part.Circle(V(875, -325, 0), V(0, 0, 1), 25), math.radians(0), math.radians(270)), False)
sketch9.addGeometry(Part.Circle(V(875, -325, 0), V(0, 0, 1), 23.5), False)
sketch9.addConstraint(Sketcher.Constraint("Tangent", 0, 1, 1, 2))
sketch9.addConstraint(Sketcher.Constraint("Coincident", 1, 1, 0, 2))
sketch9.addConstraint(Sketcher.Constraint("Coincident", 2, 3, 0, 3))
sketch9.addConstraint(Sketcher.Constraint("Horizontal", 2, 3, 1, 1))
sketch9.addConstraint(Sketcher.Constraint("Vertical", 2, 3, 0, 1))
sketch9.addConstraint(Sketcher.Constraint("Diameter", 2, Q("47 mm")))
sketch9.addConstraint(Sketcher.Constraint("Radius", 0, Q("25 mm")))
sketch9.addConstraint(Sketcher.Constraint("DistanceX", -1, 1, 0, 3, Q("875 mm")))
sketch9.addConstraint(Sketcher.Constraint("DistanceY", 0, 3, -1, 1, Q("325 mm")))
pad9 = doc.addObject("PartDesign::Pad", "Pad008")
body7.addObject(pad9)
pad9.Profile = sketch9
pad9.Length = 645
pad9.Reversed = True

doc.recompute()
